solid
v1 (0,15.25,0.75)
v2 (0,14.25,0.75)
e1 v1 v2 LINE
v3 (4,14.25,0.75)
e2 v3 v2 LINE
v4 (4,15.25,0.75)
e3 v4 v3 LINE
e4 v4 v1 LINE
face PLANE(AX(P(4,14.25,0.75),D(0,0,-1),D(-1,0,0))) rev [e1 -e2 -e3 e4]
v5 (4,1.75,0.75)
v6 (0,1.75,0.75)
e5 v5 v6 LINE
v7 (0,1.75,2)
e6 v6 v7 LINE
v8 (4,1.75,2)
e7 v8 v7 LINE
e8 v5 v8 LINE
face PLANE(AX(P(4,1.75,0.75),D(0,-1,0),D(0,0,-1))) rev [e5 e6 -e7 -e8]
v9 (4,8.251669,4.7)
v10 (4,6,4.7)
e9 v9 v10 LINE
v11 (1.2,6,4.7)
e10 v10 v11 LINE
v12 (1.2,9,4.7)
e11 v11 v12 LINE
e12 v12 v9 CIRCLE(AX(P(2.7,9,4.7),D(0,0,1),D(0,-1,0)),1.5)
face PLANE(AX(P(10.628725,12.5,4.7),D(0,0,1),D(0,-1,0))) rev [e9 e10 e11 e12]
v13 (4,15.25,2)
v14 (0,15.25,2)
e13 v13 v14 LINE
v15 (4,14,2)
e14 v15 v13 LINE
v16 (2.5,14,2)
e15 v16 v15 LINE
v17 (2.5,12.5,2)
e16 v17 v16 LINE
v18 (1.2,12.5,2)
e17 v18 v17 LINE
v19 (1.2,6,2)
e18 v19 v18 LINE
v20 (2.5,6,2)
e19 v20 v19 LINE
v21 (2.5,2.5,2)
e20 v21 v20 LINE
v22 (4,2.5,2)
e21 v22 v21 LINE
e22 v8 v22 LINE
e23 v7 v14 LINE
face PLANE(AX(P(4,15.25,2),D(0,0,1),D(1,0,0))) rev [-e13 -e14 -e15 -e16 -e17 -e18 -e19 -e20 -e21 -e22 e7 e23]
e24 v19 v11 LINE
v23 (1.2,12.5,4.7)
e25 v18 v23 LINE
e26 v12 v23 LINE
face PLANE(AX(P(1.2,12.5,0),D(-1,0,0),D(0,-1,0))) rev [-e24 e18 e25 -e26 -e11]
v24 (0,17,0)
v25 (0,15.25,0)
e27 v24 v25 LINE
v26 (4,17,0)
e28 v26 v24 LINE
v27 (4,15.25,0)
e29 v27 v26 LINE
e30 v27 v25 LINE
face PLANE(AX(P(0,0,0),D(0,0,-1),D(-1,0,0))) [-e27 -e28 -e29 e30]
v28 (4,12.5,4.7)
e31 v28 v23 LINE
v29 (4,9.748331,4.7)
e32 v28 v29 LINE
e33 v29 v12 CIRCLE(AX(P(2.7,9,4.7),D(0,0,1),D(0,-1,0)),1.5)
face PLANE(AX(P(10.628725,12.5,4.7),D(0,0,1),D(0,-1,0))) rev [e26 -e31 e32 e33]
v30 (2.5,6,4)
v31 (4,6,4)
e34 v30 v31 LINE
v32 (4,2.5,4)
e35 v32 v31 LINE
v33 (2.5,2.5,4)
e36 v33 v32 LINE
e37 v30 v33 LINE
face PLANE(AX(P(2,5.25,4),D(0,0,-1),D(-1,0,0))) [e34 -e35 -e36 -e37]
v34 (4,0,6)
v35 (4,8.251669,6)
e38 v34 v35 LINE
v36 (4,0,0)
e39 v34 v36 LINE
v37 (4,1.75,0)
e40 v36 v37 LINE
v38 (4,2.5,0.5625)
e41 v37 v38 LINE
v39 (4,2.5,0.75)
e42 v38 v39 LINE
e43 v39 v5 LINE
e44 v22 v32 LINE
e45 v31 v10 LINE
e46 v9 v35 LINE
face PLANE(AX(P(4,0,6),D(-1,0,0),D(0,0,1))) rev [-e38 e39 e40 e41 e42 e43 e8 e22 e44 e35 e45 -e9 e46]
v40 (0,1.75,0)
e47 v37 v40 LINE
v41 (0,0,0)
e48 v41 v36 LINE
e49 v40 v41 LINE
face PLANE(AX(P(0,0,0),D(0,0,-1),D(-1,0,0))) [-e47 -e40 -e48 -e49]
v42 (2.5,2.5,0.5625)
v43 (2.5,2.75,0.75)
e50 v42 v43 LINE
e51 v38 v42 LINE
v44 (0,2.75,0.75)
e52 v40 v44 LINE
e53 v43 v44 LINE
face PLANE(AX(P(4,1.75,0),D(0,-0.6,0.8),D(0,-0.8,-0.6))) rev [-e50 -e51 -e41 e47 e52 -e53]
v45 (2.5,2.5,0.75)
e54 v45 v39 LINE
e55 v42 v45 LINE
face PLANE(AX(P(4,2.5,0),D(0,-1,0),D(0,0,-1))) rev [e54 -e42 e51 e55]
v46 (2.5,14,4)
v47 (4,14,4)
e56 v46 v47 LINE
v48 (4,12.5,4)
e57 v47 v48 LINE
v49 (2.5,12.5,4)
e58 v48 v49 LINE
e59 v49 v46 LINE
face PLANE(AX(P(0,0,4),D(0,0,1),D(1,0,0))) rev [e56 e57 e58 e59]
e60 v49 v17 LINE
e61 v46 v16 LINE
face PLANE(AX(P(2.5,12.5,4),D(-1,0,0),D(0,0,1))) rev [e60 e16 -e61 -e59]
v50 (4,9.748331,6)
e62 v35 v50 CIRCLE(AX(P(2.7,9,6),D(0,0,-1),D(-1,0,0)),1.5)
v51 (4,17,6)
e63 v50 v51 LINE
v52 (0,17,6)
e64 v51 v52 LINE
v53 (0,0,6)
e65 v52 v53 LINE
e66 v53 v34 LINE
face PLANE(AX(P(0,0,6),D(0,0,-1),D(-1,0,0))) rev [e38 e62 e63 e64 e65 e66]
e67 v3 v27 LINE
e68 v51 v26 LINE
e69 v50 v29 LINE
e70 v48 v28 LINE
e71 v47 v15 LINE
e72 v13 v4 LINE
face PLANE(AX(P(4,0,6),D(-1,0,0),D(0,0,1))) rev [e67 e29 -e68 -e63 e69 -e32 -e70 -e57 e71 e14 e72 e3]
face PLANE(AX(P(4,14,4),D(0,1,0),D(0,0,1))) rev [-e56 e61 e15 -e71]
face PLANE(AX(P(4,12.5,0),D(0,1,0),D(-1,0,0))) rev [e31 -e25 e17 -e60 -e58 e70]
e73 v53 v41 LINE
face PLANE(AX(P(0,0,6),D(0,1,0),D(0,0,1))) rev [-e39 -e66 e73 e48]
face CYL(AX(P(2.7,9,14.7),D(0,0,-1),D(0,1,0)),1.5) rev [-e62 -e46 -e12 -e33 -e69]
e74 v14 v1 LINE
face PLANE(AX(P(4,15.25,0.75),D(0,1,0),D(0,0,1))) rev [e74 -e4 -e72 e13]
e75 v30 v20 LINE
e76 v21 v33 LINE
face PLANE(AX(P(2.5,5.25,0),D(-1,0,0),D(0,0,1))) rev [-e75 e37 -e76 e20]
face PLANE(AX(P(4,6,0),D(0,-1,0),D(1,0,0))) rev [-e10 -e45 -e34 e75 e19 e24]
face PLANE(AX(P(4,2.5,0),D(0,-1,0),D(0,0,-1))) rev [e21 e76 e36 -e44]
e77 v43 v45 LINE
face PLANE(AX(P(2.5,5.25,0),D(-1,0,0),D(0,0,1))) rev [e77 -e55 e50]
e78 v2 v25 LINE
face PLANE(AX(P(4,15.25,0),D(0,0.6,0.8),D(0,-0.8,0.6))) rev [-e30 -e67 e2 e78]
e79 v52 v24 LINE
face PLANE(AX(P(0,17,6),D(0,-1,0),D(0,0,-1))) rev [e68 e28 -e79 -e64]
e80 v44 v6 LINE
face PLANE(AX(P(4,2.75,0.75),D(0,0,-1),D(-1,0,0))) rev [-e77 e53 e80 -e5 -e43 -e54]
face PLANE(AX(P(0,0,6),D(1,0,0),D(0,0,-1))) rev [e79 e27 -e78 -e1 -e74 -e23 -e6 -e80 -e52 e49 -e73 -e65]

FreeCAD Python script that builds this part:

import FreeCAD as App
import Part
import Sketcher
from FreeCAD import Vector


def add_polygon(sketch, points):
    """Adds a closed chain of lines whose ends are joined by coincident constraints."""
    first, n = sketch.GeometryCount, len(points)
    for a, b in zip(points, points[1:] + points[:1]):
        sketch.addGeometry(Part.LineSegment(App.Vector(*a, 0), App.Vector(*b, 0)), False)
    for i in range(n):
        sketch.addConstraint(Sketcher.Constraint("Coincident", first + i, 2, first + (i + 1) % n, 1))

doc = App.newDocument("Part")
body = doc.addObject("PartDesign::Body", "Body")

sketch1 = body.newObject("Sketcher::SketchObject", "Sketch")
sketch1.AttachmentSupport = (doc.getObject("XY_Plane"), [""])
sketch1.MapMode = "FlatFace"
add_polygon(sketch1, [(0, 17), (0, 0), (4, 0), (4, 17)])
sketch1.addConstraint([
    Sketcher.Constraint("Vertical", 0),
    Sketcher.Constraint("Horizontal", 1),
    Sketcher.Constraint("Vertical", 2),
    Sketcher.Constraint("Horizontal", 3),
    Sketcher.Constraint("Coincident", 0, 2, -1, 1),
    Sketcher.Constraint("DistanceX", 1, 1, 1, 2, 4.0),
    Sketcher.Constraint("DistanceY", 0, 2, 0, 1, 17.0),
])
pad1 = body.newObject("PartDesign::Pad", "Pad")
pad1.Profile = sketch1
pad1.Length = 6

sketch2 = body.newObject("Sketcher::SketchObject", "Sketch001")
sketch2.AttachmentSupport = (doc.getObject("XY_Plane"), [""])
sketch2.MapMode = "FlatFace"
sketch2.AttachmentOffset = App.Placement(Vector(0, 0, 6), App.Rotation())
add_polygon(sketch2, [(1.2, 12.5), (1.2, 6), (4, 6), (4, 12.5)])
add_polygon(sketch2, [(2.5, 5.2), (2.5, 2.5), (4, 2.5), (4, 5.2)])
sketch2.addConstraint([
    Sketcher.Constraint("Vertical", 0),
    Sketcher.Constraint("Horizontal", 1),
    Sketcher.Constraint("Vertical", 2),
    Sketcher.Constraint("Horizontal", 3),
    Sketcher.Constraint("Vertical", 4),
    Sketcher.Constraint("Horizontal", 5),
    Sketcher.Constraint("Vertical", 6),
    Sketcher.Constraint("Horizontal", 7),
    Sketcher.Constraint("Vertical", 2, 2, 5, 2),
    Sketcher.Constraint("DistanceX", 1, 1, 1, 2, 2.8),
    Sketcher.Constraint("DistanceX", 5, 1, 5, 2, 1.5),
    Sketcher.Constraint("DistanceY", 0, 2, 0, 1, 6.5),
    Sketcher.Constraint("DistanceY", -1, 1, 0, 2, 6.0),
    Sketcher.Constraint("DistanceX", -1, 1, 1, 2, 4.0),
    Sketcher.Constraint("DistanceY", 4, 2, 3, 2, 10.0),
    Sketcher.Constraint("DistanceY", 4, 2, 4, 1, 2.75),
])
pocket1 = body.newObject("PartDesign::Pocket", "Pocket")
pocket1.Profile = sketch2
pocket1.Type = "ThroughAll"

sketch3 = body.newObject("Sketcher::SketchObject", "Sketch002")
sketch3.AttachmentSupport = (doc.getObject("YZ_Plane"), [""])
sketch3.MapMode = "FlatFace"
add_polygon(sketch3, [(14.2, 0.8), (15.2, 0), (1.8, 0), (2.8, 0.8), (1.8, 0.8), (1.8, 2), (15.2, 2), (15.2, 0.8)])
sketch3.addConstraint([
    Sketcher.Constraint("Horizontal", 1),
    Sketcher.Constraint("Horizontal", 3),
    Sketcher.Constraint("Vertical", 4),
    Sketcher.Constraint("Horizontal", 5),
    Sketcher.Constraint("Vertical", 6),
    Sketcher.Constraint("Horizontal", 7),
    Sketcher.Constraint("PointOnObject", 0, 2, -1),
    Sketcher.Constraint("Horizontal", 3, 2, 6, 2),
    Sketcher.Constraint("Vertical", 1, 2, 3, 2),
    Sketcher.Constraint("Vertical", 0, 2, 5, 2),
    Sketcher.Constraint("Equal", 3, 7),
    Sketcher.Constraint("DistanceX", 3, 2, 3, 1, 1.0),
    Sketcher.Constraint("DistanceX", 1, 2, 1, 1, 13.5),
    Sketcher.Constraint("DistanceY", -1, 1, 4, 2, 2.0),
    Sketcher.Constraint("DistanceY", 4, 1, 4, 2, 1.25),
    Sketcher.Constraint("DistanceX", -1, 1, 0, 2, 15.25),
])
pocket2 = body.newObject("PartDesign::Pocket", "Pocket001")
pocket2.Profile = sketch3
pocket2.Type = "ThroughAll"
pocket2.Reversed = True

sketch4 = body.newObject("Sketcher::SketchObject", "Sketch003")
sketch4.AttachmentSupport = (doc.getObject("YZ_Plane"), [""])
sketch4.MapMode = "FlatFace"
sketch4.AttachmentOffset = App.Placement(Vector(0, 0, 4), App.Rotation())
add_polygon(sketch4, [(5.2, 6), (2.5, 6), (2.5, 4), (5.2, 4)])
sketch4.addConstraint([
    Sketcher.Constraint("Horizontal", 0),
    Sketcher.Constraint("Vertical", 1),
    Sketcher.Constraint("Horizontal", 2),
    Sketcher.Constraint("Vertical", 3),
    Sketcher.Constraint("DistanceY", 1, 2, 1, 1, 2.0),
    Sketcher.Constraint("DistanceY", -1, 1, 0, 2, 6.0),
    Sketcher.Constraint("DistanceX", 0, 2, 0, 1, 2.75),
    Sketcher.Constraint("DistanceX", -1, 1, 0, 2, 2.5),
])
pad2 = body.newObject("PartDesign::Pad", "Pad001")
pad2.Profile = sketch4
pad2.Length = 2
pad2.Reversed = True

sketch5 = body.newObject("Sketcher::SketchObject", "Sketch004")
sketch5.AttachmentSupport = (doc.getObject("XY_Plane"), [""])
sketch5.MapMode = "FlatFace"
sketch5.AttachmentOffset = App.Placement(Vector(0, 0, 2), App.Rotation())
add_polygon(sketch5, [(4, 14), (4, 12.5), (2.5, 12.5), (2.5, 14)])
add_polygon(sketch5, [(4, 6), (4, 5.2), (2.5, 5.2), (2.5, 6)])
sketch5.addConstraint([
    Sketcher.Constraint("Vertical", 0),
    Sketcher.Constraint("Horizontal", 1),
    Sketcher.Constraint("Vertical", 2),
    Sketcher.Constraint("Horizontal", 3),
    Sketcher.Constraint("Vertical", 4),
    Sketcher.Constraint("Horizontal", 5),
    Sketcher.Constraint("Vertical", 6),
    Sketcher.Constraint("Horizontal", 7),
    Sketcher.Constraint("Vertical", 3, 2, 4, 2),
    Sketcher.Constraint("Vertical", 2, 2, 5, 2),
    Sketcher.Constraint("Equal", 7, 0),
    Sketcher.Constraint("DistanceX", 1, 2, 1, 1, 1.5),
    Sketcher.Constraint("DistanceX", -1, 1, 0, 2, 4.0),
    Sketcher.Constraint("DistanceY", -1, 1, 2, 2, 14.0),
    Sketcher.Constraint("DistanceY", -1, 1, 6, 2, 6.0),
    Sketcher.Constraint("DistanceY", 4, 2, 4, 1, 0.75),
])
pocket3 = body.newObject("PartDesign::Pocket", "Pocket002")
pocket3.Profile = sketch5
pocket3.Length = 2
pocket3.Reversed = True

sketch6 = body.newObject("Sketcher::SketchObject", "Sketch005")
sketch6.AttachmentSupport = (doc.getObject("YZ_Plane"), [""])
sketch6.MapMode = "FlatFace"
sketch6.AttachmentOffset = App.Placement(Vector(0, 0, 1.2), App.Rotation())
add_polygon(sketch6, [(12.5, 6), (6, 6), (6, 4.7), (12.5, 4.7)])
sketch6.addConstraint([
    Sketcher.Constraint("Horizontal", 0),
    Sketcher.Constraint("Vertical", 1),
    Sketcher.Constraint("Horizontal", 2),
    Sketcher.Constraint("Vertical", 3),
    Sketcher.Constraint("DistanceX", 0, 2, 0, 1, 6.5),
    Sketcher.Constraint("DistanceY", 1, 2, 1, 1, 1.3),
    Sketcher.Constraint("DistanceX", -1, 1, 0, 2, 6.0),
    Sketcher.Constraint("DistanceY", -1, 1, 0, 2, 6.0),
])
pad3 = body.newObject("PartDesign::Pad", "Pad002")
pad3.Profile = sketch6
pad3.Length = 2.8

sketch7 = body.newObject("Sketcher::SketchObject", "Sketch006")
sketch7.AttachmentSupport = (doc.getObject("XY_Plane"), [""])
sketch7.MapMode = "FlatFace"
sketch7.AttachmentOffset = App.Placement(Vector(0, 0, 4.7), App.Rotation())
sketch7.addGeometry(Part.Circle(Vector(2.7, 9, 0), Vector(0, 0, 1), 1.5), False)
sketch7.addConstraint([
    Sketcher.Constraint("Diameter", 0, 3.0),
    Sketcher.Constraint("DistanceY", -1, 1, 0, 3, 9.0),
    Sketcher.Constraint("DistanceX", -1, 1, 0, 3, 2.7),
])
pocket4 = body.newObject("PartDesign::Pocket", "Pocket003")
pocket4.Profile = sketch7
pocket4.Length = 10
pocket4.Reversed = True

doc.recompute()
